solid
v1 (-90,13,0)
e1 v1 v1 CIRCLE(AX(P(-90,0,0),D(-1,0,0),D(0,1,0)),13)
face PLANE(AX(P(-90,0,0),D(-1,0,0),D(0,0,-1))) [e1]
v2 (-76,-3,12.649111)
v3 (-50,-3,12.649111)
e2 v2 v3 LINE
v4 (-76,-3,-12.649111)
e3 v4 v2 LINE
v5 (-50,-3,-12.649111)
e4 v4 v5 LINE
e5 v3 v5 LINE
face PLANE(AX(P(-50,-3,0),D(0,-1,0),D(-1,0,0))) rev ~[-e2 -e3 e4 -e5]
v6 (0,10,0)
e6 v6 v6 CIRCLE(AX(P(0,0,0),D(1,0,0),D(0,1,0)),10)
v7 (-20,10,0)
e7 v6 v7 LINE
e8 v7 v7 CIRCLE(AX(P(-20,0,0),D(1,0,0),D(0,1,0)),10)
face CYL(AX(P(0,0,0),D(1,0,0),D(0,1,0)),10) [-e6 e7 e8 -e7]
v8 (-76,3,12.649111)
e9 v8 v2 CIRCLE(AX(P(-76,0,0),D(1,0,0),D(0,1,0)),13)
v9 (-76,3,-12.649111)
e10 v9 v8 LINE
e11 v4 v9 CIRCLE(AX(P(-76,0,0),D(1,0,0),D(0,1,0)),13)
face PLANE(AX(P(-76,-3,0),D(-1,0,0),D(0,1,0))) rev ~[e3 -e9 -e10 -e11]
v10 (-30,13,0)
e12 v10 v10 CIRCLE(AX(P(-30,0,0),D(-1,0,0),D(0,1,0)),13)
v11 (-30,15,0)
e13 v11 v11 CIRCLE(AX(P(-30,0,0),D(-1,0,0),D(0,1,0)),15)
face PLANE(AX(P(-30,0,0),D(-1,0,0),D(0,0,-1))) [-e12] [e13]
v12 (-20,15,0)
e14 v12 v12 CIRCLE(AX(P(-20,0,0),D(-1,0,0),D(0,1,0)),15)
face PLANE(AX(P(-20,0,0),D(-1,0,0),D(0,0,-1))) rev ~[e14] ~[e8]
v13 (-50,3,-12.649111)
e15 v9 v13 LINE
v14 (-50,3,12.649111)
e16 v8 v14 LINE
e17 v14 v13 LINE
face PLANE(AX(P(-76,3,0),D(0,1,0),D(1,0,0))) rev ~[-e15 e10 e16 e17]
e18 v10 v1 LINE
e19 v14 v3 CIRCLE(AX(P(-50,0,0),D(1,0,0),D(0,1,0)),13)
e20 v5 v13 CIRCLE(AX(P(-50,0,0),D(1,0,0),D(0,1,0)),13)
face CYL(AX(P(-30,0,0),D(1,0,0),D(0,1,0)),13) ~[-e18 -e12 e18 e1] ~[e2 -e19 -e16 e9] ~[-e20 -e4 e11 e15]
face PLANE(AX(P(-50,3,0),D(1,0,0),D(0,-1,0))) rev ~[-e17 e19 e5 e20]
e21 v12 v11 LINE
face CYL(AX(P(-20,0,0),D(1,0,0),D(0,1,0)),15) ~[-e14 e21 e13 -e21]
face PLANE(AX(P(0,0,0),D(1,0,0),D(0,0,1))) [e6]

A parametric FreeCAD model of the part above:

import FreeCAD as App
import Part
import Sketcher
from FreeCAD import Vector
Q = App.Units.Quantity

doc = App.newDocument("Part")
params = doc.addObject("Spreadsheet::Sheet", "Params")
for row, (alias, value) in enumerate([
    ("sketch1_diameter", "20 mm"),
    ("pad1_length", "20 mm"),
    ("sketch2_diameter", "30 mm"),
    ("pad2_length", "10 mm"),
    ("sketch3_diameter", "26 mm"),
    ("pad3_length", "60 mm"),
    ("sketch4_width", "26 mm"),
    ("sketch4_height", "6 mm"),
    ("pocket1_length", "78.6359 mm"),
], start=1):
    params.set(f"A{row}", alias)
    params.set(f"B{row}", "=" + value)
    params.setAlias(f"B{row}", alias)

body = doc.addObject("PartDesign::Body", "Body")

sketch1 = body.newObject("Sketcher::SketchObject", "Sketch")
sketch1.AttachmentSupport = (doc.getObject("YZ_Plane"), [""])
sketch1.MapMode = "FlatFace"
sketch1.addGeometry(Part.Circle(Vector(0, 0, 0), Vector(0, 0, 1), 10), False)
sketch1.addConstraint([
    Sketcher.Constraint("Coincident", 0, 3, -1, 1),
    Sketcher.Constraint("Diameter", 0, Q("20 mm")),
])
sketch1.setExpression("Constraints[1]", "Params.sketch1_diameter")
pad1 = body.newObject("PartDesign::Pad", "Pad")
pad1.Profile = sketch1
pad1.setExpression("Length", "Params.pad1_length")
pad1.Reversed = True

sketch2 = body.newObject("Sketcher::SketchObject", "Sketch001")
sketch2.AttachmentSupport = (doc.getObject("YZ_Plane"), [""])
sketch2.MapMode = "FlatFace"
sketch2.AttachmentOffset = App.Placement(Vector(0, 0, -20), App.Rotation())
sketch2.addGeometry(Part.Circle(Vector(0, 0, 0), Vector(0, 0, 1), 15), False)
sketch2.addConstraint([
    Sketcher.Constraint("Coincident", 0, 3, -1, 1),
    Sketcher.Constraint("Diameter", 0, Q("30 mm")),
])
sketch2.setExpression("Constraints[1]", "Params.sketch2_diameter")
pad2 = body.newObject("PartDesign::Pad", "Pad001")
pad2.Profile = sketch2
pad2.setExpression("Length", "Params.pad2_length")
pad2.Reversed = True

sketch3 = body.newObject("Sketcher::SketchObject", "Sketch002")
sketch3.AttachmentSupport = (doc.getObject("YZ_Plane"), [""])
sketch3.MapMode = "FlatFace"
sketch3.AttachmentOffset = App.Placement(Vector(0, 0, -30), App.Rotation())
sketch3.addGeometry(Part.Circle(Vector(0, 0, 0), Vector(0, 0, 1), 13), False)
sketch3.addConstraint([
    Sketcher.Constraint("Coincident", 0, 3, -1, 1),
    Sketcher.Constraint("Diameter", 0, Q("26 mm")),
])
sketch3.setExpression("Constraints[1]", "Params.sketch3_diameter")
pad3 = body.newObject("PartDesign::Pad", "Pad002")
pad3.Profile = sketch3
pad3.setExpression("Length", "Params.pad3_length")
pad3.Reversed = True

sketch4 = body.newObject("Sketcher::SketchObject", "Sketch003")
sketch4.AttachmentSupport = (doc.getObject("XY_Plane"), [""])
sketch4.MapMode = "FlatFace"
sketch4.addGeometry([
    Part.LineSegment(Vector(-50, 3, 0), Vector(-76, 3, 0)),
    Part.LineSegment(Vector(-76, 3, 0), Vector(-76, -3, 0)),
    Part.LineSegment(Vector(-76, -3, 0), Vector(-50, -3, 0)),
    Part.LineSegment(Vector(-50, -3, 0), Vector(-50, 3, 0)),
], False)
sketch4.addConstraint([
    Sketcher.Constraint("Coincident", 0, 2, 1, 1),
    Sketcher.Constraint("Coincident", 1, 2, 2, 1),
    Sketcher.Constraint("Coincident", 2, 2, 3, 1),
    Sketcher.Constraint("Coincident", 3, 2, 0, 1),
    Sketcher.Constraint("Horizontal", 0),
    Sketcher.Constraint("Vertical", 1),
    Sketcher.Constraint("Horizontal", 2),
    Sketcher.Constraint("Vertical", 3),
    Sketcher.Constraint("DistanceX", 0, 2, -1, 1, Q("76 mm")),
    Sketcher.Constraint("DistanceX", 0, 2, 0, 1, Q("26 mm")),
    Sketcher.Constraint("DistanceY", 1, 2, 1, 1, Q("6 mm")),
    Sketcher.Constraint("DistanceY", -1, 1, 0, 2, Q("3 mm")),
])
sketch4.setExpression("Constraints[9]", "Params.sketch4_width")
sketch4.setExpression("Constraints[10]", "Params.sketch4_height")
pocket1 = body.newObject("PartDesign::Pocket", "Pocket")
pocket1.Profile = sketch4
pocket1.setExpression("Length", "Params.pocket1_length")
pocket1.Midplane = True

doc.recompute()
